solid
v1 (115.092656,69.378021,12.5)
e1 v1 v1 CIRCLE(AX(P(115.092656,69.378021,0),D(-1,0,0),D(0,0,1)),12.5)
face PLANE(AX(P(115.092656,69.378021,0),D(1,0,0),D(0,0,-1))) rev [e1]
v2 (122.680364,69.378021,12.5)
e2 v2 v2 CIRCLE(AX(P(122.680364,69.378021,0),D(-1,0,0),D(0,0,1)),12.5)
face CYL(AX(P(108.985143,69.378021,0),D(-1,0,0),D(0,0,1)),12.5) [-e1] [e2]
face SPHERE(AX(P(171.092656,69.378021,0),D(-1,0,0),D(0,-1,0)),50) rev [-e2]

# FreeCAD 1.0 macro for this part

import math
import FreeCAD as App
import Part
import Sketcher

V = App.Vector

doc = App.newDocument("Part")
params = doc.addObject("Spreadsheet::Sheet", "Params")
for row, (alias, value) in enumerate([
    ("sketch1_radius", "50 mm"),
    ("sketch1_width", "6 mm"),
    ("sketch1_height", "12.5 mm"),
    ("revolution_angle", "360 deg"),
], start=1):
    params.set(f"A{row}", alias)
    params.set(f"B{row}", "=" + value)
    params.setAlias(f"B{row}", alias)

body = doc.addObject("PartDesign::Body", "Body")

sketch1 = body.newObject("Sketcher::SketchObject", "Sketch")
sketch1.AttachmentSupport = (doc.getObject("XY_Plane"), [""])
sketch1.MapMode = "FlatFace"
sketch1.addGeometry([
    Part.LineSegment(V(115, 82, 0), V(115, 69, 0)),
    Part.LineSegment(V(115, 69, 0), V(121, 69, 0)),
    Part.ArcOfCircle(Part.Circle(V(171, 69, 0), V(0, 0, 1), 50), math.radians(165.52), math.radians(180)),
    Part.LineSegment(V(123, 82, 0), V(115, 82, 0)),
], False)
sketch1.addGeometry(Part.LineSegment(V(115, 69, 0), V(171, 69, 0)), True)
sketch1.addConstraint([
    Sketcher.Constraint("Coincident", 0, 2, 1, 1),
    Sketcher.Constraint("Coincident", 1, 2, 2, 2),
    Sketcher.Constraint("Coincident", 2, 1, 3, 1),
    Sketcher.Constraint("Coincident", 3, 2, 0, 1),
    Sketcher.Constraint("Vertical", 0),
    Sketcher.Constraint("Horizontal", 1),
    Sketcher.Constraint("Horizontal", 3),
    Sketcher.Constraint("Horizontal", 4),
    Sketcher.Constraint("Coincident", 4, 1, 0, 2),
    Sketcher.Constraint("Coincident", 4, 2, 2, 3),
    Sketcher.Constraint("Radius", 2, 50.0),
    Sketcher.Constraint("DistanceX", 1, 1, 1, 2, 6.0),
    Sketcher.Constraint("DistanceY", 0, 2, 0, 1, 12.5),
    Sketcher.Constraint("DistanceY", -1, 1, 2, 3, 69.378021),
    Sketcher.Constraint("DistanceX", -1, 1, 2, 3, 171.092656),
])
sketch1.setExpression("Constraints[10]", "Params.sketch1_radius")
sketch1.setExpression("Constraints[11]", "Params.sketch1_width")
sketch1.setExpression("Constraints[12]", "Params.sketch1_height")
revolution = body.newObject("PartDesign::Revolution", "Revolution")
revolution.Profile = sketch1
revolution.ReferenceAxis = (sketch1, ["Axis0"])
revolution.setExpression("Angle", "Params.revolution_angle")

doc.recompute()
